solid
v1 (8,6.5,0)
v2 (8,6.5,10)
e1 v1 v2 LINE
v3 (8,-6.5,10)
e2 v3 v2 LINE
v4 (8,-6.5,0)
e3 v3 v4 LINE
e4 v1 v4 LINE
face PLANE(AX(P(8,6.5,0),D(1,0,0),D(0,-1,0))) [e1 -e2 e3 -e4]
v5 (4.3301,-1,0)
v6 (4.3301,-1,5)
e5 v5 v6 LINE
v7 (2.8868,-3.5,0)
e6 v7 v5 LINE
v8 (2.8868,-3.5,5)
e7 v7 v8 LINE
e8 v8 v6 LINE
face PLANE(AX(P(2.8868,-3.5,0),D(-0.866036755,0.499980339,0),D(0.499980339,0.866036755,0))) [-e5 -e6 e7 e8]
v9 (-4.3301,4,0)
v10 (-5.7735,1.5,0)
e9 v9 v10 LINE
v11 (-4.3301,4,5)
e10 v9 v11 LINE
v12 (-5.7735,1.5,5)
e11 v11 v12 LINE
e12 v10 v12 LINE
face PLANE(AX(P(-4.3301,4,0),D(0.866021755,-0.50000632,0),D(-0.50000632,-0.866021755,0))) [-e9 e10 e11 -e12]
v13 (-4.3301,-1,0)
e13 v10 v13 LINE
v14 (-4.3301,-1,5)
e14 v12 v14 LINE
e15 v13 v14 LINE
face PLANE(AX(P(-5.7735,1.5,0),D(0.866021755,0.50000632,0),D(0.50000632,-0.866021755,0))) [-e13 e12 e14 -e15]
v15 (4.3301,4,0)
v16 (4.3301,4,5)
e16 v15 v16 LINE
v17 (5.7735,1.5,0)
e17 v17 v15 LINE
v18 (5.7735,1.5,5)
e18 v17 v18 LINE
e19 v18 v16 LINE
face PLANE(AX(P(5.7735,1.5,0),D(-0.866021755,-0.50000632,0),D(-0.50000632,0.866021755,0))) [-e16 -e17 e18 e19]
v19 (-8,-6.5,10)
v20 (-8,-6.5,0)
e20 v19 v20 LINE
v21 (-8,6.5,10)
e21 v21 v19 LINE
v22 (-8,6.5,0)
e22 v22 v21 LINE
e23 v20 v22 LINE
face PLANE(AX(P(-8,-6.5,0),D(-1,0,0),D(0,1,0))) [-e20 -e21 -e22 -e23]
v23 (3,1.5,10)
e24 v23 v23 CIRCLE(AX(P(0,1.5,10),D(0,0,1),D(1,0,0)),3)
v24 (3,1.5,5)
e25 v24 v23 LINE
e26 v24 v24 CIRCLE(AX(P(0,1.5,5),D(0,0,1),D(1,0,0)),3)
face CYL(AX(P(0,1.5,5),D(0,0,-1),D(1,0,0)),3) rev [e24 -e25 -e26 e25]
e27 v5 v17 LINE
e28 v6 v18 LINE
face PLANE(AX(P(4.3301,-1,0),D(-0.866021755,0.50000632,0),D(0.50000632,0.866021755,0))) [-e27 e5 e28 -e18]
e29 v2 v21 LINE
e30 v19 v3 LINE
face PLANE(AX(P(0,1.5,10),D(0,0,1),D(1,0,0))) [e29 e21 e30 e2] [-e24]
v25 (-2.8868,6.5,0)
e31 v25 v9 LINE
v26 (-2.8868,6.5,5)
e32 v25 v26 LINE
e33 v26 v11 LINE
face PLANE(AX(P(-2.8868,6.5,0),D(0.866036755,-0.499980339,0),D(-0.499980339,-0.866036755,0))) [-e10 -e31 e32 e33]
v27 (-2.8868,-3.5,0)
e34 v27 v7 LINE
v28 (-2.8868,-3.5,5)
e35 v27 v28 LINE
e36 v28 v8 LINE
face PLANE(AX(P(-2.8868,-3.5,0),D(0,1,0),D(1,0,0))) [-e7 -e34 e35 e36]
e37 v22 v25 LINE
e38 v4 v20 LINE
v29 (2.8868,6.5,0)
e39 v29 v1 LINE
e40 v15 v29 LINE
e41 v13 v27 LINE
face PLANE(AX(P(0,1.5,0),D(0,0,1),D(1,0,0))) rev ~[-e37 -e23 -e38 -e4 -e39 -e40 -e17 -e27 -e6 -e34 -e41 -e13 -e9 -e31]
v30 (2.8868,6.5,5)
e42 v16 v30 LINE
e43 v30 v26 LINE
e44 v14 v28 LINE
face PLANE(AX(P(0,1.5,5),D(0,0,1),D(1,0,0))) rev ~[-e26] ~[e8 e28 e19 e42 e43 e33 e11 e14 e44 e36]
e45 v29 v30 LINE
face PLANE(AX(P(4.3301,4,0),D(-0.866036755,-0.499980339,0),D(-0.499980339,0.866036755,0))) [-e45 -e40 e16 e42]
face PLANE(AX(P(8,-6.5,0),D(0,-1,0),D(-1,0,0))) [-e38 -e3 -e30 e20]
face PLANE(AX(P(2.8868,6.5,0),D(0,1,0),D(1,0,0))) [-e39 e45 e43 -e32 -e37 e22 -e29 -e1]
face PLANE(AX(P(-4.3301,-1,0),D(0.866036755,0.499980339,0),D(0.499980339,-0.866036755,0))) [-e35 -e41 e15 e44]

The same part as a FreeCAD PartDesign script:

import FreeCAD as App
import Part
import Sketcher
from FreeCAD import Vector
Q = App.Units.Quantity

doc = App.newDocument("Part")
params = doc.addObject("Spreadsheet::Sheet", "Params")
for row, (alias, value) in enumerate([
    ("sketch1_width", "16 mm"),
    ("sketch1_height", "13 mm"),
    ("pad1_length", "5 mm"),
    ("sketch2_diameter", "6 mm"),
    ("sketch2_width", "16 mm"),
    ("sketch2_height", "13 mm"),
    ("pad2_length", "5 mm"),
], start=1):
    params.set(f"A{row}", alias)
    params.set(f"B{row}", "=" + value)
    params.setAlias(f"B{row}", alias)

body = doc.addObject("PartDesign::Body", "Body")

sketch1 = body.newObject("Sketcher::SketchObject", "Sketch")
sketch1.AttachmentSupport = (doc.getObject("XY_Plane"), [""])
sketch1.MapMode = "FlatFace"
sketch1.addGeometry([
    Part.LineSegment(Vector(8, -6.5, 0), Vector(8, 6.5, 0)),
    Part.LineSegment(Vector(8, 6.5, 0), Vector(2.8868, 6.5, 0)),
    Part.LineSegment(Vector(2.8868, 6.5, 0), Vector(4.3301, 4, 0)),
    Part.LineSegment(Vector(4.3301, 4, 0), Vector(5.7735, 1.5, 0)),
    Part.LineSegment(Vector(5.7735, 1.5, 0), Vector(4.3301, -1, 0)),
    Part.LineSegment(Vector(4.3301, -1, 0), Vector(2.8868, -3.5, 0)),
    Part.LineSegment(Vector(2.8868, -3.5, 0), Vector(-2.8868, -3.5, 0)),
    Part.LineSegment(Vector(-2.8868, -3.5, 0), Vector(-4.3301, -1, 0)),
    Part.LineSegment(Vector(-4.3301, -1, 0), Vector(-5.7735, 1.5, 0)),
    Part.LineSegment(Vector(-5.7735, 1.5, 0), Vector(-4.3301, 4, 0)),
    Part.LineSegment(Vector(-4.3301, 4, 0), Vector(-2.8868, 6.5, 0)),
    Part.LineSegment(Vector(-2.8868, 6.5, 0), Vector(-8, 6.5, 0)),
    Part.LineSegment(Vector(-8, 6.5, 0), Vector(-8, -6.5, 0)),
    Part.LineSegment(Vector(-8, -6.5, 0), Vector(8, -6.5, 0)),
], False)
sketch1.addConstraint([
    Sketcher.Constraint("Coincident", 0, 2, 1, 1),
    Sketcher.Constraint("Coincident", 1, 2, 2, 1),
    Sketcher.Constraint("Coincident", 2, 2, 3, 1),
    Sketcher.Constraint("Coincident", 3, 2, 4, 1),
    Sketcher.Constraint("Coincident", 4, 2, 5, 1),
    Sketcher.Constraint("Coincident", 5, 2, 6, 1),
    Sketcher.Constraint("Coincident", 6, 2, 7, 1),
    Sketcher.Constraint("Coincident", 7, 2, 8, 1),
    Sketcher.Constraint("Coincident", 8, 2, 9, 1),
    Sketcher.Constraint("Coincident", 9, 2, 10, 1),
    Sketcher.Constraint("Coincident", 10, 2, 11, 1),
    Sketcher.Constraint("Coincident", 11, 2, 12, 1),
    Sketcher.Constraint("Coincident", 12, 2, 13, 1),
    Sketcher.Constraint("Coincident", 13, 2, 0, 1),
    Sketcher.Constraint("Vertical", 0),
    Sketcher.Constraint("Horizontal", 1),
    Sketcher.Constraint("Horizontal", 6),
    Sketcher.Constraint("Horizontal", 11),
    Sketcher.Constraint("Vertical", 12),
    Sketcher.Constraint("Horizontal", 13),
    Sketcher.Constraint("Symmetric", 0, 2, 12, 2, -1, 1),
    Sketcher.Constraint("Symmetric", 4, 2, 7, 2, -2),
    Sketcher.Constraint("Symmetric", 3, 2, 8, 2, -2),
    Sketcher.Constraint("Symmetric", 2, 2, 9, 2, -2),
    Sketcher.Constraint("Symmetric", 1, 2, 10, 2, -2),
    Sketcher.Constraint("Parallel", 2, 3),
    Sketcher.Constraint("Parallel", 4, 5),
    Sketcher.Constraint("Parallel", 3, 7),
    Sketcher.Constraint("Parallel", 7, 8),
    Sketcher.Constraint("Vertical", 2, 2, 4, 2),
    Sketcher.Constraint("Vertical", 1, 2, 5, 2),
    Sketcher.Constraint("Equal", 2, 3),
    Sketcher.Constraint("DistanceX", 13, 1, 13, 2, Q("16 mm")),
    Sketcher.Constraint("DistanceY", 0, 1, 0, 2, Q("13 mm")),
    Sketcher.Constraint("Angle", 3, Q("-59.9996 deg")),
    Sketcher.Constraint("DistanceY", -1, 1, 2, 2, Q("4 mm")),
    Sketcher.Constraint("DistanceX", -1, 1, 2, 2, Q("4.33 mm")),
])
sketch1.setExpression("Constraints[32]", "Params.sketch1_width")
sketch1.setExpression("Constraints[33]", "Params.sketch1_height")
pad1 = body.newObject("PartDesign::Pad", "Pad")
pad1.Profile = sketch1
pad1.setExpression("Length", "Params.pad1_length")

sketch2 = body.newObject("Sketcher::SketchObject", "Sketch001")
sketch2.AttachmentSupport = (doc.getObject("XY_Plane"), [""])
sketch2.MapMode = "FlatFace"
sketch2.AttachmentOffset = App.Placement(Vector(0, 0, 5), App.Rotation())
sketch2.addGeometry([
    Part.LineSegment(Vector(8, 6.5, 0), Vector(-8, 6.5, 0)),
    Part.LineSegment(Vector(-8, 6.5, 0), Vector(-8, -6.5, 0)),
    Part.LineSegment(Vector(-8, -6.5, 0), Vector(8, -6.5, 0)),
    Part.LineSegment(Vector(8, -6.5, 0), Vector(8, 6.5, 0)),
    Part.Circle(Vector(0, 1.5, 0), Vector(0, 0, 1), 3),
], False)
sketch2.addConstraint([
    Sketcher.Constraint("Coincident", 0, 2, 1, 1),
    Sketcher.Constraint("Coincident", 1, 2, 2, 1),
    Sketcher.Constraint("Coincident", 2, 2, 3, 1),
    Sketcher.Constraint("Coincident", 3, 2, 0, 1),
    Sketcher.Constraint("Horizontal", 0),
    Sketcher.Constraint("Vertical", 1),
    Sketcher.Constraint("Horizontal", 2),
    Sketcher.Constraint("Vertical", 3),
    Sketcher.Constraint("Symmetric", 0, 2, 2, 2, -1, 1),
    Sketcher.Constraint("PointOnObject", 4, 3, -2),
    Sketcher.Constraint("Diameter", 4, Q("6 mm")),
    Sketcher.Constraint("DistanceX", 0, 2, 0, 1, Q("16 mm")),
    Sketcher.Constraint("DistanceY", 1, 2, 1, 1, Q("13 mm")),
    Sketcher.Constraint("DistanceY", 4, 3, 0, 2, Q("5 mm")),
])
sketch2.setExpression("Constraints[10]", "Params.sketch2_diameter")
sketch2.setExpression("Constraints[11]", "Params.sketch2_width")
sketch2.setExpression("Constraints[12]", "Params.sketch2_height")
pad2 = body.newObject("PartDesign::Pad", "Pad001")
pad2.Profile = sketch2
pad2.setExpression("Length", "Params.pad2_length")

doc.recompute()
